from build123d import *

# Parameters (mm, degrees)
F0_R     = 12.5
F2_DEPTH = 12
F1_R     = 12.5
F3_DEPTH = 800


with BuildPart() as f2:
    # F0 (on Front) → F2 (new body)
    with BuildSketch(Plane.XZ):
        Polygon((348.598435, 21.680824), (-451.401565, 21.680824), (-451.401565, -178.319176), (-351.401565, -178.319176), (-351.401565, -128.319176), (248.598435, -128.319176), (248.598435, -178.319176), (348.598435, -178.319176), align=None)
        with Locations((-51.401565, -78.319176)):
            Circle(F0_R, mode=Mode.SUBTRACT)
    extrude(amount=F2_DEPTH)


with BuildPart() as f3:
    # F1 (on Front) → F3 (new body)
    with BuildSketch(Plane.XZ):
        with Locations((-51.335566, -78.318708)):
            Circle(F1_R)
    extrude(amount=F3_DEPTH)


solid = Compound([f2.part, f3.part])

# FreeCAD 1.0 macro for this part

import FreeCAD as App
import Part
import Sketcher

doc = App.newDocument("Part")
body = doc.addObject("PartDesign::Body", "Body")

sketch1 = body.newObject("Sketcher::SketchObject", "Sketch")
sketch1.AttachmentSupport = (doc.getObject("XZ_Plane"), [""])
sketch1.MapMode = "FlatFace"
sketch1.addGeometry([
    Part.LineSegment(App.Vector(349, 22, 0), App.Vector(-451, 22, 0)),
    Part.LineSegment(App.Vector(-451, 22, 0), App.Vector(-451, -178, 0)),
    Part.LineSegment(App.Vector(-451, -178, 0), App.Vector(-351, -178, 0)),
    Part.LineSegment(App.Vector(-351, -178, 0), App.Vector(-351, -128, 0)),
    Part.LineSegment(App.Vector(-351, -128, 0), App.Vector(249, -128, 0)),
    Part.LineSegment(App.Vector(249, -128, 0), App.Vector(249, -178, 0)),
    Part.LineSegment(App.Vector(249, -178, 0), App.Vector(349, -178, 0)),
    Part.LineSegment(App.Vector(349, -178, 0), App.Vector(349, 22, 0)),
    Part.Circle(App.Vector(-51, -78, 0), App.Vector(0, 0, 1), 12),
], False)
sketch1.addConstraint([
    Sketcher.Constraint("Coincident", 0, 2, 1, 1),
    Sketcher.Constraint("Coincident", 1, 2, 2, 1),
    Sketcher.Constraint("Coincident", 2, 2, 3, 1),
    Sketcher.Constraint("Coincident", 3, 2, 4, 1),
    Sketcher.Constraint("Coincident", 4, 2, 5, 1),
    Sketcher.Constraint("Coincident", 5, 2, 6, 1),
    Sketcher.Constraint("Coincident", 6, 2, 7, 1),
    Sketcher.Constraint("Coincident", 7, 2, 0, 1),
    Sketcher.Constraint("Horizontal", 0),
    Sketcher.Constraint("Vertical", 1),
    Sketcher.Constraint("Horizontal", 2),
    Sketcher.Constraint("Vertical", 3),
    Sketcher.Constraint("Horizontal", 4),
    Sketcher.Constraint("Vertical", 5),
    Sketcher.Constraint("Horizontal", 6),
    Sketcher.Constraint("Vertical", 7),
    Sketcher.Constraint("Horizontal", 2, 2, 5, 2),
    Sketcher.Constraint("Equal", 2, 6),
    Sketcher.Constraint("Diameter", 8, 25.0),
    Sketcher.Constraint("DistanceX", 0, 2, 0, 1, 800.0),
    Sketcher.Constraint("DistanceX", 2, 1, 2, 2, 100.0),
    Sketcher.Constraint("DistanceY", 1, 2, 1, 1, 200.0),
    Sketcher.Constraint("DistanceY", 3, 1, 3, 2, 50.0),
    Sketcher.Constraint("DistanceX", 0, 2, 8, 3, 400.0),
    Sketcher.Constraint("DistanceY", 8, 3, 0, 2, 100.0),
    Sketcher.Constraint("DistanceX", 8, 3, -1, 1, 51.401565),
    Sketcher.Constraint("DistanceY", 8, 3, -1, 1, 78.319176),
])
pad1 = body.newObject("PartDesign::Pad", "Pad")
pad1.Profile = sketch1
pad1.Length = 12
body2 = doc.addObject("PartDesign::Body", "Body001")

sketch2 = body2.newObject("Sketcher::SketchObject", "Sketch001")
sketch2.AttachmentSupport = (doc.getObject("XZ_Plane001"), [""])
sketch2.MapMode = "FlatFace"
sketch2.addGeometry(Part.Circle(App.Vector(-51, -78, 0), App.Vector(0, 0, 1), 12), False)
sketch2.addConstraint([
    Sketcher.Constraint("Diameter", 0, 25.0),
    Sketcher.Constraint("DistanceY", 0, 3, -1, 1, 78.318708),
    Sketcher.Constraint("DistanceX", 0, 3, -1, 1, 51.335566),
])
pad2 = body2.newObject("PartDesign::Pad", "Pad001")
pad2.Profile = sketch2
pad2.Length = 800

doc.recompute()
